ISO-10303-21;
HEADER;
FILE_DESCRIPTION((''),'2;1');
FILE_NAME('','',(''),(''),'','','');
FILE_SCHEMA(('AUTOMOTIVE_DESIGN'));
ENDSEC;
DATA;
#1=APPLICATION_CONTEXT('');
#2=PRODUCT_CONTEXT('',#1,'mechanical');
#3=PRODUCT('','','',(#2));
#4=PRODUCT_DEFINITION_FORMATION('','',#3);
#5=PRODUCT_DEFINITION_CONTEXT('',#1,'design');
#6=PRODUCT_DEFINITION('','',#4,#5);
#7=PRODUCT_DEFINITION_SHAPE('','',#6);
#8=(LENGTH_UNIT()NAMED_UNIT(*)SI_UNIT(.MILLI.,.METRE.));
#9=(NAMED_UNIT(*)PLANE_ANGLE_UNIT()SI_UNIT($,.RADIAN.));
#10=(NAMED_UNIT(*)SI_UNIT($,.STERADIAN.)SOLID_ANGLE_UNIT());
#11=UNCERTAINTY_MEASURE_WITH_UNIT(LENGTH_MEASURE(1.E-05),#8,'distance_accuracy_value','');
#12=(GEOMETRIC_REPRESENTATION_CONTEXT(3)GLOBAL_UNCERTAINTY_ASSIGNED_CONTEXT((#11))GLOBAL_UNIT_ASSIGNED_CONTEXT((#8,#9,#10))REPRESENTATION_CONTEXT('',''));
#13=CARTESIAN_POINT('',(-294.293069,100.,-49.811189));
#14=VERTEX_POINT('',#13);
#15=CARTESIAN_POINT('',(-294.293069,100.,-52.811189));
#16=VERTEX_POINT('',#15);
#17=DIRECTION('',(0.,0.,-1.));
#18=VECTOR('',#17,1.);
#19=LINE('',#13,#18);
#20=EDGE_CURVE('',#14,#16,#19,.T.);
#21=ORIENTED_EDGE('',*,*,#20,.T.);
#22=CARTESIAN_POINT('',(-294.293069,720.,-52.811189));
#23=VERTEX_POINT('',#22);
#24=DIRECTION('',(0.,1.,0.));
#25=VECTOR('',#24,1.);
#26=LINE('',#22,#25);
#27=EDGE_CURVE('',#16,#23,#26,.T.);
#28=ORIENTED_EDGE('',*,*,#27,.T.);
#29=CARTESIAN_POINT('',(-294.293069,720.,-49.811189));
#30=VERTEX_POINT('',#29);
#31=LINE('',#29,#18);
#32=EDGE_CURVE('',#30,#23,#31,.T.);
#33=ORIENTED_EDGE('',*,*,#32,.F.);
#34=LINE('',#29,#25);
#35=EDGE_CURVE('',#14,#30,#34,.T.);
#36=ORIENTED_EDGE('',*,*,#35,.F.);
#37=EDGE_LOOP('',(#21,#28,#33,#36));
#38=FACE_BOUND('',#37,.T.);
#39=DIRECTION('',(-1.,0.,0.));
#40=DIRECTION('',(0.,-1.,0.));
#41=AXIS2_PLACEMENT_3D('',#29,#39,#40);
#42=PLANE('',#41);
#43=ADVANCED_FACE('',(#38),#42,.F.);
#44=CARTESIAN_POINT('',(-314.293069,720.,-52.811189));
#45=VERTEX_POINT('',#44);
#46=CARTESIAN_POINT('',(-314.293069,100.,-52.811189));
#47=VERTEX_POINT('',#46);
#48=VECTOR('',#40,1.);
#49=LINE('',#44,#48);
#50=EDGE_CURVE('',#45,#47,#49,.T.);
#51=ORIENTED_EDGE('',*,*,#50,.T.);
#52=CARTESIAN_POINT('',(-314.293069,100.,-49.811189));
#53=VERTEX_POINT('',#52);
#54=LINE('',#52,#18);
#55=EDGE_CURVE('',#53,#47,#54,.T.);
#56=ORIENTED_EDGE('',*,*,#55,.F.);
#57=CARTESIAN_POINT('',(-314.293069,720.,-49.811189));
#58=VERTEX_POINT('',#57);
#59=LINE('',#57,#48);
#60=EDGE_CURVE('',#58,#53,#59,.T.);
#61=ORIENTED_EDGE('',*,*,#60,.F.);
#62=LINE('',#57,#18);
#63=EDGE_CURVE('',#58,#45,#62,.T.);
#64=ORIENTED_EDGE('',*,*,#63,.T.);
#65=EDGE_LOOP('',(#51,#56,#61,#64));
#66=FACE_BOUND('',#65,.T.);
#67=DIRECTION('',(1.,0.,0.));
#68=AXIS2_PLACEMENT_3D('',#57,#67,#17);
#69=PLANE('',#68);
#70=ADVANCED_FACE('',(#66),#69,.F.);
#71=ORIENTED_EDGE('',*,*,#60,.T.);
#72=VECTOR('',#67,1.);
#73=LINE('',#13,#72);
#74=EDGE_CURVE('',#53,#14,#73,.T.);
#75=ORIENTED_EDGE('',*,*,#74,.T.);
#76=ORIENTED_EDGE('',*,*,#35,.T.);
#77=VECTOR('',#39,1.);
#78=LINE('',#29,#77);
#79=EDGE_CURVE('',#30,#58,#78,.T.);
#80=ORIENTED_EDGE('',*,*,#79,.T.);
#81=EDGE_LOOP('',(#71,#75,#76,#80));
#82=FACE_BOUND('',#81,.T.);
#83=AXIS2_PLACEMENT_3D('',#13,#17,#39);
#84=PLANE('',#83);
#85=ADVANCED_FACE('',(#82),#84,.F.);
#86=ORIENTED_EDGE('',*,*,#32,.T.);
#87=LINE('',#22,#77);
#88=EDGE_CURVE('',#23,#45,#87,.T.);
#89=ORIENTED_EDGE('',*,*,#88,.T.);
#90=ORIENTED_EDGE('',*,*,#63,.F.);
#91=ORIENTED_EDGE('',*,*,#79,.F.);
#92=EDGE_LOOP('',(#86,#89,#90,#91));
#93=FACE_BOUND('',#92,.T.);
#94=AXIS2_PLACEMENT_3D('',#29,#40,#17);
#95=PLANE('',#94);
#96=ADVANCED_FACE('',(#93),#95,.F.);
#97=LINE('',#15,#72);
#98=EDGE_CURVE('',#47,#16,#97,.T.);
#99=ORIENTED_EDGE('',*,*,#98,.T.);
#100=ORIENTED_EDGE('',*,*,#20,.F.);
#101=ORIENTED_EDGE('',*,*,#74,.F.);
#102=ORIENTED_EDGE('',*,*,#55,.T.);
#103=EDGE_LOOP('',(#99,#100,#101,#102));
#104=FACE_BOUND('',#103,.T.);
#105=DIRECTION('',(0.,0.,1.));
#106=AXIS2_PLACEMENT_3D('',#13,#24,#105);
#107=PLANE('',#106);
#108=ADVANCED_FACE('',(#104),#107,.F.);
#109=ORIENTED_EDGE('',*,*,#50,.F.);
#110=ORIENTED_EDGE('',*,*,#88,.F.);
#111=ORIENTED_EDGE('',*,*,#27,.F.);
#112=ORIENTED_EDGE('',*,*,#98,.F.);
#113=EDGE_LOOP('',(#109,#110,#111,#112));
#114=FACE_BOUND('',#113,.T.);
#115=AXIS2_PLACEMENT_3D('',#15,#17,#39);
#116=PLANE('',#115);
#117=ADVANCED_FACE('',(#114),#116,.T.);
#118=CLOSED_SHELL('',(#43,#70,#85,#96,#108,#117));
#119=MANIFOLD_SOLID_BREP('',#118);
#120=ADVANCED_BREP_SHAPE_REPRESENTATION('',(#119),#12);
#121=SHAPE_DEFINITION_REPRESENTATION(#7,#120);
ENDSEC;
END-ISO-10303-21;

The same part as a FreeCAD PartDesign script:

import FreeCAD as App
import Part
import Sketcher
from FreeCAD import Vector
Q = App.Units.Quantity

doc = App.newDocument("Part")
body = doc.addObject("PartDesign::Body", "Body")

sketch1 = body.newObject("Sketcher::SketchObject", "Sketch")
sketch1.AttachmentSupport = (doc.getObject("XY_Plane"), [""])
sketch1.MapMode = "FlatFace"
sketch1.AttachmentOffset = App.Placement(Vector(0, 0, -52.811189), App.Rotation())
sketch1.addGeometry([
    Part.LineSegment(Vector(-314, 720, 0), Vector(-314, 100, 0)),
    Part.LineSegment(Vector(-314, 100, 0), Vector(-294, 100, 0)),
    Part.LineSegment(Vector(-294, 100, 0), Vector(-294, 720, 0)),
    Part.LineSegment(Vector(-294, 720, 0), Vector(-314, 720, 0)),
], False)
sketch1.addConstraint([
    Sketcher.Constraint("Coincident", 0, 2, 1, 1),
    Sketcher.Constraint("Coincident", 1, 2, 2, 1),
    Sketcher.Constraint("Coincident", 2, 2, 3, 1),
    Sketcher.Constraint("Coincident", 3, 2, 0, 1),
    Sketcher.Constraint("Vertical", 0),
    Sketcher.Constraint("Horizontal", 1),
    Sketcher.Constraint("Vertical", 2),
    Sketcher.Constraint("Horizontal", 3),
    Sketcher.Constraint("DistanceX", 1, 1, 1, 2, Q("20 mm")),
    Sketcher.Constraint("DistanceY", 0, 2, 0, 1, Q("620 mm")),
    Sketcher.Constraint("DistanceY", -1, 1, 0, 2, Q("100 mm")),
    Sketcher.Constraint("DistanceX", 0, 2, -1, 1, Q("314.293069 mm")),
])
pad1 = body.newObject("PartDesign::Pad", "Pad")
pad1.Profile = sketch1
pad1.Length = 3

doc.recompute()
